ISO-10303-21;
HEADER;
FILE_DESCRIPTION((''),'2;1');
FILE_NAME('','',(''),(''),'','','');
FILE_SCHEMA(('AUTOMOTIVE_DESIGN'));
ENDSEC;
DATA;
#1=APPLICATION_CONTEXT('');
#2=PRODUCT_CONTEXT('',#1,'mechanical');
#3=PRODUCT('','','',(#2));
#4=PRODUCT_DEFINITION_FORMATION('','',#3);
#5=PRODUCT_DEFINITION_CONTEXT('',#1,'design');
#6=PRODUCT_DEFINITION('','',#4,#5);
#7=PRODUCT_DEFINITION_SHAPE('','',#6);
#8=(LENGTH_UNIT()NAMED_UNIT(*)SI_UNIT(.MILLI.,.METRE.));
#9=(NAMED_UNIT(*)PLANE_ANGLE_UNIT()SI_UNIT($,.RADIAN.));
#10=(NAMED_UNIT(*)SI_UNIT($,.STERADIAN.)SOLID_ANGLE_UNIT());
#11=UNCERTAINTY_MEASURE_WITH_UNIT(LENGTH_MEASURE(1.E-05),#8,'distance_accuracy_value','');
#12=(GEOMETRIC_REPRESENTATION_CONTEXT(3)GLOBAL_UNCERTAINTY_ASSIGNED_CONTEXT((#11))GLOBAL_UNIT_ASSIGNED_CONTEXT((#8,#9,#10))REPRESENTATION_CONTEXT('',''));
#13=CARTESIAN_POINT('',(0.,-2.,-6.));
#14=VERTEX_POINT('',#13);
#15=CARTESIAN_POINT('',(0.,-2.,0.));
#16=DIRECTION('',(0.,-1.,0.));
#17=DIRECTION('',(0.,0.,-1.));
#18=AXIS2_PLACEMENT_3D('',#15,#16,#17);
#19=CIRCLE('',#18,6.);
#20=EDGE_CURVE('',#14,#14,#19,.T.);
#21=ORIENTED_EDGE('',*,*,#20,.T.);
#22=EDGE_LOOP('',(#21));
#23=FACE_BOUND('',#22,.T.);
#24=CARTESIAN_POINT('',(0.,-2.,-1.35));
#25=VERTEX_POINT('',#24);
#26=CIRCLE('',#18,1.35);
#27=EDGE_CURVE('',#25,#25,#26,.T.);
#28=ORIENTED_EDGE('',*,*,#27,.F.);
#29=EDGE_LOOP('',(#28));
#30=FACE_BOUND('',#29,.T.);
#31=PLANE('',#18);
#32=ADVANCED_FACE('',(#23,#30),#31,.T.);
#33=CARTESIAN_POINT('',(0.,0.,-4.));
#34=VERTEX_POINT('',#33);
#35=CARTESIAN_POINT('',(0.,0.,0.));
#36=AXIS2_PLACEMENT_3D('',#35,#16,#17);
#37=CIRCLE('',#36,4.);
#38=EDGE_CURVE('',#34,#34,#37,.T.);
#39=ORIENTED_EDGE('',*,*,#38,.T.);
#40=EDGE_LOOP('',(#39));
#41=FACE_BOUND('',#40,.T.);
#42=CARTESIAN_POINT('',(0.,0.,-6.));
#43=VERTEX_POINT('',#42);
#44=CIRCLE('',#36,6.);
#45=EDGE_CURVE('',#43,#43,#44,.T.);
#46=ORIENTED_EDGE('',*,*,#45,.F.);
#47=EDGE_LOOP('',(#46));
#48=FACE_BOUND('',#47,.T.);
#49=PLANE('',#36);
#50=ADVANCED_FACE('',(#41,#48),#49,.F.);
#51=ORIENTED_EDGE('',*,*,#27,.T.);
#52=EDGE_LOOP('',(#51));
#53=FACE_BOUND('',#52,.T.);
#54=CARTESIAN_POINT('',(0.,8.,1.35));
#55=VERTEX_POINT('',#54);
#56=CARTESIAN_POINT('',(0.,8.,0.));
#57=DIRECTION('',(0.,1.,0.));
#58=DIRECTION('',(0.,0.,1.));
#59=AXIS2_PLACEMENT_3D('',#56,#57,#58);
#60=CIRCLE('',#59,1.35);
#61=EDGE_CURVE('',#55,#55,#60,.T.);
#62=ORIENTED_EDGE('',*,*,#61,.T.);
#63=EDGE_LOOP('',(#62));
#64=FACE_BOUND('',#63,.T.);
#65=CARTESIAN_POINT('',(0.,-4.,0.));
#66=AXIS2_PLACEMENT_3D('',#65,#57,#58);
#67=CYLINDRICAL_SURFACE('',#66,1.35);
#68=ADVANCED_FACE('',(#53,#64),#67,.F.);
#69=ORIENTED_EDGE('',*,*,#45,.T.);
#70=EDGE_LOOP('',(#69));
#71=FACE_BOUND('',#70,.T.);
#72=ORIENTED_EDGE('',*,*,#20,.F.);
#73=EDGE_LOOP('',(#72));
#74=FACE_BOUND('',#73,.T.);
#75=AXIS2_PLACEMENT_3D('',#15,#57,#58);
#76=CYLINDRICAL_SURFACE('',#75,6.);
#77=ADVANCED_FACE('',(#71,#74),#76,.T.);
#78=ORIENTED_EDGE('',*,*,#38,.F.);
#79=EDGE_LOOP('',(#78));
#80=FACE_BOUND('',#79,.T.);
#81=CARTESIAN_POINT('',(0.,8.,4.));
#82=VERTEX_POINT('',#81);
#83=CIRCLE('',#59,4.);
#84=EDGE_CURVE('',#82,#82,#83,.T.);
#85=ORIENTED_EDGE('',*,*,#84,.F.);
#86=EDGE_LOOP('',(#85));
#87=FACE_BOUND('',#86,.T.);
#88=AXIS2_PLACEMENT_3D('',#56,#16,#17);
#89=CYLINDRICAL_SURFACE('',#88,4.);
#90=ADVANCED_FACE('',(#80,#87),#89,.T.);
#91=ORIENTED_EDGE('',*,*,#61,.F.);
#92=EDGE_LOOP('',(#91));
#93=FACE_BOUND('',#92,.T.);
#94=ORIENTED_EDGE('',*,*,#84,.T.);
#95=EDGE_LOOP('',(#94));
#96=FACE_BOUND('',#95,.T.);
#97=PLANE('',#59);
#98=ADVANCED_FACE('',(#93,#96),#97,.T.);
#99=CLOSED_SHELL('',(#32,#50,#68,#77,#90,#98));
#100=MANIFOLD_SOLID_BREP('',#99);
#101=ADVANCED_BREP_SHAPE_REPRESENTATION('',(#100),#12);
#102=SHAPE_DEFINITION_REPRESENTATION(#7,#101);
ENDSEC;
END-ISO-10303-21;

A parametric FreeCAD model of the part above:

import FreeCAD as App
import Part
import Sketcher
from FreeCAD import Vector
Q = App.Units.Quantity

doc = App.newDocument("Part")
body = doc.addObject("PartDesign::Body", "Body")

sketch1 = body.newObject("Sketcher::SketchObject", "Sketch")
sketch1.AttachmentSupport = (doc.getObject("XZ_Plane"), [""])
sketch1.MapMode = "FlatFace"
sketch1.addGeometry(Part.Circle(Vector(0, 0, 0), Vector(0, 0, 1), 4), False)
sketch1.addConstraint([
    Sketcher.Constraint("Coincident", 0, 3, -1, 1),
    Sketcher.Constraint("Diameter", 0, Q("8 mm")),
])
pad1 = body.newObject("PartDesign::Pad", "Pad")
pad1.Profile = sketch1
pad1.Length = 8
pad1.Reversed = True

sketch2 = body.newObject("Sketcher::SketchObject", "Sketch001")
sketch2.AttachmentSupport = (doc.getObject("XZ_Plane"), [""])
sketch2.MapMode = "FlatFace"
sketch2.addGeometry(Part.Circle(Vector(0, 0, 0), Vector(0, 0, 1), 6), False)
sketch2.addConstraint([
    Sketcher.Constraint("Coincident", 0, 3, -1, 1),
    Sketcher.Constraint("Diameter", 0, Q("12 mm")),
])
pad2 = body.newObject("PartDesign::Pad", "Pad001")
pad2.Profile = sketch2
pad2.Length = 2

sketch3 = body.newObject("Sketcher::SketchObject", "Sketch002")
sketch3.AttachmentSupport = (doc.getObject("XZ_Plane"), [""])
sketch3.MapMode = "FlatFace"
sketch3.AttachmentOffset = App.Placement(Vector(0, 0, -8), App.Rotation())
sketch3.addGeometry(Part.Circle(Vector(0, 0, 0), Vector(0, 0, 1), 1.4), False)
sketch3.addConstraint([
    Sketcher.Constraint("Coincident", 0, 3, -1, 1),
    Sketcher.Constraint("Diameter", 0, Q("2.7 mm")),
])
pocket1 = body.newObject("PartDesign::Pocket", "Pocket")
pocket1.Profile = sketch3
pocket1.Length = 12
pocket1.Reversed = True

doc.recompute()
